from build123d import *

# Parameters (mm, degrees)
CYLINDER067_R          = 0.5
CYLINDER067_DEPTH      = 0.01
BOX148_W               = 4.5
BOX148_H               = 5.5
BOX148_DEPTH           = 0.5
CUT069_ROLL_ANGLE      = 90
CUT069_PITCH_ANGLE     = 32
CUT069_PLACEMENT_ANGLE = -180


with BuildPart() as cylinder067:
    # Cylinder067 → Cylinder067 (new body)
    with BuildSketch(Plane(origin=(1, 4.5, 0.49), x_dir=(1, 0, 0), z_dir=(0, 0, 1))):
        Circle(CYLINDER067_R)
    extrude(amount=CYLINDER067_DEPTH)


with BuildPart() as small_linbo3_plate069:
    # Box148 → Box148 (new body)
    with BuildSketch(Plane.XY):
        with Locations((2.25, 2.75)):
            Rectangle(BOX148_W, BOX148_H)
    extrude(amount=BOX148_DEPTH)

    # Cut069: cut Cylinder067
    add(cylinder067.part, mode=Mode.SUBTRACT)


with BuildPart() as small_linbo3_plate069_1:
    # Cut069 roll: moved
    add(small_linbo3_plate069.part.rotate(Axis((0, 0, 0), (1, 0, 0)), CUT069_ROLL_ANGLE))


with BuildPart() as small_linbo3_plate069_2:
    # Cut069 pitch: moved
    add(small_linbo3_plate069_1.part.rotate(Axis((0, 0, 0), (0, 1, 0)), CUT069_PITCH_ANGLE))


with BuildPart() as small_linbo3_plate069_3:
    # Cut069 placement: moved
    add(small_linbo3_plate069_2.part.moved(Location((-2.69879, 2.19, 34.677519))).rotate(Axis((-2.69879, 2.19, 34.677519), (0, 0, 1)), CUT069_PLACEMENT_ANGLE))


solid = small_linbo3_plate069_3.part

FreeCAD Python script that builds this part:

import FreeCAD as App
import Part
import Sketcher
from FreeCAD import Vector


def add_polygon(sketch, points):
    """Adds a closed chain of lines whose ends are joined by coincident constraints."""
    first, n = sketch.GeometryCount, len(points)
    for a, b in zip(points, points[1:] + points[:1]):
        sketch.addGeometry(Part.LineSegment(App.Vector(*a, 0), App.Vector(*b, 0)), False)
    for i in range(n):
        sketch.addConstraint(Sketcher.Constraint("Coincident", first + i, 2, first + (i + 1) % n, 1))

doc = App.newDocument("Part")
body = doc.addObject("PartDesign::Body", "Body")

# Sketch on XY plane
sketch1 = body.newObject("Sketcher::SketchObject", "Sketch")
sketch1.AttachmentSupport = (doc.getObject("XY_Plane"), [""])
sketch1.MapMode = "FlatFace"
sketch1.AttachmentOffset = App.Placement(Vector(0, 0, 0.49), App.Rotation())
sketch1.addGeometry(Part.Circle(Vector(1, 4.5, 0), Vector(0, 0, 1), 0.5), False)
sketch1.addConstraint(Sketcher.Constraint("Diameter", 0, 1.0))
sketch1.addConstraint(Sketcher.Constraint("DistanceX", -1, 1, 0, 3, 1.0))
sketch1.addConstraint(Sketcher.Constraint("DistanceY", -1, 1, 0, 3, 4.5))
pad1 = body.newObject("PartDesign::Pad", "Pad")
pad1.Profile = sketch1
pad1.Length = 0.01
body2 = doc.addObject("PartDesign::Body", "Body001")

# Sketch on XY plane
sketch2 = body2.newObject("Sketcher::SketchObject", "Sketch001")
sketch2.AttachmentSupport = (doc.getObject("XY_Plane001"), [""])
sketch2.MapMode = "FlatFace"
add_polygon(sketch2, [(0, 5.5), (0, 0), (4.5, 0), (4.5, 5.5)])  # lines 0-3
sketch2.addConstraint(Sketcher.Constraint("Vertical", 0))
sketch2.addConstraint(Sketcher.Constraint("Horizontal", 1))
sketch2.addConstraint(Sketcher.Constraint("Vertical", 2))
sketch2.addConstraint(Sketcher.Constraint("Horizontal", 3))
sketch2.addConstraint(Sketcher.Constraint("Coincident", 0, 2, -1, 1))
sketch2.addConstraint(Sketcher.Constraint("DistanceX", 1, 1, 1, 2, 4.5))
sketch2.addConstraint(Sketcher.Constraint("DistanceY", 0, 2, 0, 1, 5.5))
pad2 = body2.newObject("PartDesign::Pad", "Pad001")
pad2.Profile = sketch2
pad2.Length = 0.5
doc.recompute()

boolean = body2.newObject("PartDesign::Boolean", "Boolean")
boolean.Type = "Cut"
boolean.addObjects([body])
body3 = doc.addObject("PartDesign::Body", "Body002")
doc.recompute()

body2.Placement = App.Placement(Vector(0, 0, 0), App.Rotation(Vector(1, 0, 0), 90))
boolean2 = body3.newObject("PartDesign::Boolean", "Boolean001")
boolean2.Type = "Fuse"
boolean2.addObjects([body2])
body4 = doc.addObject("PartDesign::Body", "Body003")
doc.recompute()

body3.Placement = App.Placement(Vector(0, 0, 0), App.Rotation(Vector(0, 1, 0), 32))
boolean3 = body4.newObject("PartDesign::Boolean", "Boolean002")
boolean3.Type = "Fuse"
boolean3.addObjects([body3])
body5 = doc.addObject("PartDesign::Body", "Body004")
doc.recompute()

body4.Placement = App.Placement(Vector(-2.69879, 2.19, 34.677519), App.Rotation(Vector(0, 0, 1), 180))
boolean4 = body5.newObject("PartDesign::Boolean", "Boolean003")
boolean4.Type = "Fuse"
boolean4.addObjects([body4])

doc.recompute()
